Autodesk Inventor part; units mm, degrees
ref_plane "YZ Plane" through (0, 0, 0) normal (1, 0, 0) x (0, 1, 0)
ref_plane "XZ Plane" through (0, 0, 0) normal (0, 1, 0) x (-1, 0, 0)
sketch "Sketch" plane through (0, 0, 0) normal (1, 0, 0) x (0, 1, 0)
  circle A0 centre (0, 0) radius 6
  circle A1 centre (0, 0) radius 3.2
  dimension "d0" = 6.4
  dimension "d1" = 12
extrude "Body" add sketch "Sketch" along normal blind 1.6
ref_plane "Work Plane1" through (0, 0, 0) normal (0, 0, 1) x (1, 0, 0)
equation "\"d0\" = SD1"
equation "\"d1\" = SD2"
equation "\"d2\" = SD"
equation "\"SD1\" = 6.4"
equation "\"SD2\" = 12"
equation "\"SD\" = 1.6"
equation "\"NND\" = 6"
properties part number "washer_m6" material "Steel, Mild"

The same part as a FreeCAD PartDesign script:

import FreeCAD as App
import Part
import Sketcher
Q = App.Units.Quantity

doc = App.newDocument("Part")
body = doc.addObject("PartDesign::Body", "Body")

# Sketch on YZ plane
sketch1 = body.newObject("Sketcher::SketchObject", "Sketch")
sketch1.AttachmentSupport = (doc.getObject("YZ_Plane"), [""])
sketch1.MapMode = "FlatFace"
sketch1.addGeometry([
    Part.Circle(App.Vector(0, 0, 0), App.Vector(0, 0, 1), 6),
    Part.Circle(App.Vector(0, 0, 0), App.Vector(0, 0, 1), 3.2),
], False)
sketch1.addConstraint([
    Sketcher.Constraint("Coincident", 0, 3, -1, 1),
    Sketcher.Constraint("Coincident", 1, 3, -1, 1),
    Sketcher.Constraint("Diameter", 0, Q("12 mm")),
    Sketcher.Constraint("Diameter", 1, Q("6.4 mm")),
])
pad1 = body.newObject("PartDesign::Pad", "Pad")
pad1.Profile = sketch1
pad1.Length = 1.6

doc.recompute()
